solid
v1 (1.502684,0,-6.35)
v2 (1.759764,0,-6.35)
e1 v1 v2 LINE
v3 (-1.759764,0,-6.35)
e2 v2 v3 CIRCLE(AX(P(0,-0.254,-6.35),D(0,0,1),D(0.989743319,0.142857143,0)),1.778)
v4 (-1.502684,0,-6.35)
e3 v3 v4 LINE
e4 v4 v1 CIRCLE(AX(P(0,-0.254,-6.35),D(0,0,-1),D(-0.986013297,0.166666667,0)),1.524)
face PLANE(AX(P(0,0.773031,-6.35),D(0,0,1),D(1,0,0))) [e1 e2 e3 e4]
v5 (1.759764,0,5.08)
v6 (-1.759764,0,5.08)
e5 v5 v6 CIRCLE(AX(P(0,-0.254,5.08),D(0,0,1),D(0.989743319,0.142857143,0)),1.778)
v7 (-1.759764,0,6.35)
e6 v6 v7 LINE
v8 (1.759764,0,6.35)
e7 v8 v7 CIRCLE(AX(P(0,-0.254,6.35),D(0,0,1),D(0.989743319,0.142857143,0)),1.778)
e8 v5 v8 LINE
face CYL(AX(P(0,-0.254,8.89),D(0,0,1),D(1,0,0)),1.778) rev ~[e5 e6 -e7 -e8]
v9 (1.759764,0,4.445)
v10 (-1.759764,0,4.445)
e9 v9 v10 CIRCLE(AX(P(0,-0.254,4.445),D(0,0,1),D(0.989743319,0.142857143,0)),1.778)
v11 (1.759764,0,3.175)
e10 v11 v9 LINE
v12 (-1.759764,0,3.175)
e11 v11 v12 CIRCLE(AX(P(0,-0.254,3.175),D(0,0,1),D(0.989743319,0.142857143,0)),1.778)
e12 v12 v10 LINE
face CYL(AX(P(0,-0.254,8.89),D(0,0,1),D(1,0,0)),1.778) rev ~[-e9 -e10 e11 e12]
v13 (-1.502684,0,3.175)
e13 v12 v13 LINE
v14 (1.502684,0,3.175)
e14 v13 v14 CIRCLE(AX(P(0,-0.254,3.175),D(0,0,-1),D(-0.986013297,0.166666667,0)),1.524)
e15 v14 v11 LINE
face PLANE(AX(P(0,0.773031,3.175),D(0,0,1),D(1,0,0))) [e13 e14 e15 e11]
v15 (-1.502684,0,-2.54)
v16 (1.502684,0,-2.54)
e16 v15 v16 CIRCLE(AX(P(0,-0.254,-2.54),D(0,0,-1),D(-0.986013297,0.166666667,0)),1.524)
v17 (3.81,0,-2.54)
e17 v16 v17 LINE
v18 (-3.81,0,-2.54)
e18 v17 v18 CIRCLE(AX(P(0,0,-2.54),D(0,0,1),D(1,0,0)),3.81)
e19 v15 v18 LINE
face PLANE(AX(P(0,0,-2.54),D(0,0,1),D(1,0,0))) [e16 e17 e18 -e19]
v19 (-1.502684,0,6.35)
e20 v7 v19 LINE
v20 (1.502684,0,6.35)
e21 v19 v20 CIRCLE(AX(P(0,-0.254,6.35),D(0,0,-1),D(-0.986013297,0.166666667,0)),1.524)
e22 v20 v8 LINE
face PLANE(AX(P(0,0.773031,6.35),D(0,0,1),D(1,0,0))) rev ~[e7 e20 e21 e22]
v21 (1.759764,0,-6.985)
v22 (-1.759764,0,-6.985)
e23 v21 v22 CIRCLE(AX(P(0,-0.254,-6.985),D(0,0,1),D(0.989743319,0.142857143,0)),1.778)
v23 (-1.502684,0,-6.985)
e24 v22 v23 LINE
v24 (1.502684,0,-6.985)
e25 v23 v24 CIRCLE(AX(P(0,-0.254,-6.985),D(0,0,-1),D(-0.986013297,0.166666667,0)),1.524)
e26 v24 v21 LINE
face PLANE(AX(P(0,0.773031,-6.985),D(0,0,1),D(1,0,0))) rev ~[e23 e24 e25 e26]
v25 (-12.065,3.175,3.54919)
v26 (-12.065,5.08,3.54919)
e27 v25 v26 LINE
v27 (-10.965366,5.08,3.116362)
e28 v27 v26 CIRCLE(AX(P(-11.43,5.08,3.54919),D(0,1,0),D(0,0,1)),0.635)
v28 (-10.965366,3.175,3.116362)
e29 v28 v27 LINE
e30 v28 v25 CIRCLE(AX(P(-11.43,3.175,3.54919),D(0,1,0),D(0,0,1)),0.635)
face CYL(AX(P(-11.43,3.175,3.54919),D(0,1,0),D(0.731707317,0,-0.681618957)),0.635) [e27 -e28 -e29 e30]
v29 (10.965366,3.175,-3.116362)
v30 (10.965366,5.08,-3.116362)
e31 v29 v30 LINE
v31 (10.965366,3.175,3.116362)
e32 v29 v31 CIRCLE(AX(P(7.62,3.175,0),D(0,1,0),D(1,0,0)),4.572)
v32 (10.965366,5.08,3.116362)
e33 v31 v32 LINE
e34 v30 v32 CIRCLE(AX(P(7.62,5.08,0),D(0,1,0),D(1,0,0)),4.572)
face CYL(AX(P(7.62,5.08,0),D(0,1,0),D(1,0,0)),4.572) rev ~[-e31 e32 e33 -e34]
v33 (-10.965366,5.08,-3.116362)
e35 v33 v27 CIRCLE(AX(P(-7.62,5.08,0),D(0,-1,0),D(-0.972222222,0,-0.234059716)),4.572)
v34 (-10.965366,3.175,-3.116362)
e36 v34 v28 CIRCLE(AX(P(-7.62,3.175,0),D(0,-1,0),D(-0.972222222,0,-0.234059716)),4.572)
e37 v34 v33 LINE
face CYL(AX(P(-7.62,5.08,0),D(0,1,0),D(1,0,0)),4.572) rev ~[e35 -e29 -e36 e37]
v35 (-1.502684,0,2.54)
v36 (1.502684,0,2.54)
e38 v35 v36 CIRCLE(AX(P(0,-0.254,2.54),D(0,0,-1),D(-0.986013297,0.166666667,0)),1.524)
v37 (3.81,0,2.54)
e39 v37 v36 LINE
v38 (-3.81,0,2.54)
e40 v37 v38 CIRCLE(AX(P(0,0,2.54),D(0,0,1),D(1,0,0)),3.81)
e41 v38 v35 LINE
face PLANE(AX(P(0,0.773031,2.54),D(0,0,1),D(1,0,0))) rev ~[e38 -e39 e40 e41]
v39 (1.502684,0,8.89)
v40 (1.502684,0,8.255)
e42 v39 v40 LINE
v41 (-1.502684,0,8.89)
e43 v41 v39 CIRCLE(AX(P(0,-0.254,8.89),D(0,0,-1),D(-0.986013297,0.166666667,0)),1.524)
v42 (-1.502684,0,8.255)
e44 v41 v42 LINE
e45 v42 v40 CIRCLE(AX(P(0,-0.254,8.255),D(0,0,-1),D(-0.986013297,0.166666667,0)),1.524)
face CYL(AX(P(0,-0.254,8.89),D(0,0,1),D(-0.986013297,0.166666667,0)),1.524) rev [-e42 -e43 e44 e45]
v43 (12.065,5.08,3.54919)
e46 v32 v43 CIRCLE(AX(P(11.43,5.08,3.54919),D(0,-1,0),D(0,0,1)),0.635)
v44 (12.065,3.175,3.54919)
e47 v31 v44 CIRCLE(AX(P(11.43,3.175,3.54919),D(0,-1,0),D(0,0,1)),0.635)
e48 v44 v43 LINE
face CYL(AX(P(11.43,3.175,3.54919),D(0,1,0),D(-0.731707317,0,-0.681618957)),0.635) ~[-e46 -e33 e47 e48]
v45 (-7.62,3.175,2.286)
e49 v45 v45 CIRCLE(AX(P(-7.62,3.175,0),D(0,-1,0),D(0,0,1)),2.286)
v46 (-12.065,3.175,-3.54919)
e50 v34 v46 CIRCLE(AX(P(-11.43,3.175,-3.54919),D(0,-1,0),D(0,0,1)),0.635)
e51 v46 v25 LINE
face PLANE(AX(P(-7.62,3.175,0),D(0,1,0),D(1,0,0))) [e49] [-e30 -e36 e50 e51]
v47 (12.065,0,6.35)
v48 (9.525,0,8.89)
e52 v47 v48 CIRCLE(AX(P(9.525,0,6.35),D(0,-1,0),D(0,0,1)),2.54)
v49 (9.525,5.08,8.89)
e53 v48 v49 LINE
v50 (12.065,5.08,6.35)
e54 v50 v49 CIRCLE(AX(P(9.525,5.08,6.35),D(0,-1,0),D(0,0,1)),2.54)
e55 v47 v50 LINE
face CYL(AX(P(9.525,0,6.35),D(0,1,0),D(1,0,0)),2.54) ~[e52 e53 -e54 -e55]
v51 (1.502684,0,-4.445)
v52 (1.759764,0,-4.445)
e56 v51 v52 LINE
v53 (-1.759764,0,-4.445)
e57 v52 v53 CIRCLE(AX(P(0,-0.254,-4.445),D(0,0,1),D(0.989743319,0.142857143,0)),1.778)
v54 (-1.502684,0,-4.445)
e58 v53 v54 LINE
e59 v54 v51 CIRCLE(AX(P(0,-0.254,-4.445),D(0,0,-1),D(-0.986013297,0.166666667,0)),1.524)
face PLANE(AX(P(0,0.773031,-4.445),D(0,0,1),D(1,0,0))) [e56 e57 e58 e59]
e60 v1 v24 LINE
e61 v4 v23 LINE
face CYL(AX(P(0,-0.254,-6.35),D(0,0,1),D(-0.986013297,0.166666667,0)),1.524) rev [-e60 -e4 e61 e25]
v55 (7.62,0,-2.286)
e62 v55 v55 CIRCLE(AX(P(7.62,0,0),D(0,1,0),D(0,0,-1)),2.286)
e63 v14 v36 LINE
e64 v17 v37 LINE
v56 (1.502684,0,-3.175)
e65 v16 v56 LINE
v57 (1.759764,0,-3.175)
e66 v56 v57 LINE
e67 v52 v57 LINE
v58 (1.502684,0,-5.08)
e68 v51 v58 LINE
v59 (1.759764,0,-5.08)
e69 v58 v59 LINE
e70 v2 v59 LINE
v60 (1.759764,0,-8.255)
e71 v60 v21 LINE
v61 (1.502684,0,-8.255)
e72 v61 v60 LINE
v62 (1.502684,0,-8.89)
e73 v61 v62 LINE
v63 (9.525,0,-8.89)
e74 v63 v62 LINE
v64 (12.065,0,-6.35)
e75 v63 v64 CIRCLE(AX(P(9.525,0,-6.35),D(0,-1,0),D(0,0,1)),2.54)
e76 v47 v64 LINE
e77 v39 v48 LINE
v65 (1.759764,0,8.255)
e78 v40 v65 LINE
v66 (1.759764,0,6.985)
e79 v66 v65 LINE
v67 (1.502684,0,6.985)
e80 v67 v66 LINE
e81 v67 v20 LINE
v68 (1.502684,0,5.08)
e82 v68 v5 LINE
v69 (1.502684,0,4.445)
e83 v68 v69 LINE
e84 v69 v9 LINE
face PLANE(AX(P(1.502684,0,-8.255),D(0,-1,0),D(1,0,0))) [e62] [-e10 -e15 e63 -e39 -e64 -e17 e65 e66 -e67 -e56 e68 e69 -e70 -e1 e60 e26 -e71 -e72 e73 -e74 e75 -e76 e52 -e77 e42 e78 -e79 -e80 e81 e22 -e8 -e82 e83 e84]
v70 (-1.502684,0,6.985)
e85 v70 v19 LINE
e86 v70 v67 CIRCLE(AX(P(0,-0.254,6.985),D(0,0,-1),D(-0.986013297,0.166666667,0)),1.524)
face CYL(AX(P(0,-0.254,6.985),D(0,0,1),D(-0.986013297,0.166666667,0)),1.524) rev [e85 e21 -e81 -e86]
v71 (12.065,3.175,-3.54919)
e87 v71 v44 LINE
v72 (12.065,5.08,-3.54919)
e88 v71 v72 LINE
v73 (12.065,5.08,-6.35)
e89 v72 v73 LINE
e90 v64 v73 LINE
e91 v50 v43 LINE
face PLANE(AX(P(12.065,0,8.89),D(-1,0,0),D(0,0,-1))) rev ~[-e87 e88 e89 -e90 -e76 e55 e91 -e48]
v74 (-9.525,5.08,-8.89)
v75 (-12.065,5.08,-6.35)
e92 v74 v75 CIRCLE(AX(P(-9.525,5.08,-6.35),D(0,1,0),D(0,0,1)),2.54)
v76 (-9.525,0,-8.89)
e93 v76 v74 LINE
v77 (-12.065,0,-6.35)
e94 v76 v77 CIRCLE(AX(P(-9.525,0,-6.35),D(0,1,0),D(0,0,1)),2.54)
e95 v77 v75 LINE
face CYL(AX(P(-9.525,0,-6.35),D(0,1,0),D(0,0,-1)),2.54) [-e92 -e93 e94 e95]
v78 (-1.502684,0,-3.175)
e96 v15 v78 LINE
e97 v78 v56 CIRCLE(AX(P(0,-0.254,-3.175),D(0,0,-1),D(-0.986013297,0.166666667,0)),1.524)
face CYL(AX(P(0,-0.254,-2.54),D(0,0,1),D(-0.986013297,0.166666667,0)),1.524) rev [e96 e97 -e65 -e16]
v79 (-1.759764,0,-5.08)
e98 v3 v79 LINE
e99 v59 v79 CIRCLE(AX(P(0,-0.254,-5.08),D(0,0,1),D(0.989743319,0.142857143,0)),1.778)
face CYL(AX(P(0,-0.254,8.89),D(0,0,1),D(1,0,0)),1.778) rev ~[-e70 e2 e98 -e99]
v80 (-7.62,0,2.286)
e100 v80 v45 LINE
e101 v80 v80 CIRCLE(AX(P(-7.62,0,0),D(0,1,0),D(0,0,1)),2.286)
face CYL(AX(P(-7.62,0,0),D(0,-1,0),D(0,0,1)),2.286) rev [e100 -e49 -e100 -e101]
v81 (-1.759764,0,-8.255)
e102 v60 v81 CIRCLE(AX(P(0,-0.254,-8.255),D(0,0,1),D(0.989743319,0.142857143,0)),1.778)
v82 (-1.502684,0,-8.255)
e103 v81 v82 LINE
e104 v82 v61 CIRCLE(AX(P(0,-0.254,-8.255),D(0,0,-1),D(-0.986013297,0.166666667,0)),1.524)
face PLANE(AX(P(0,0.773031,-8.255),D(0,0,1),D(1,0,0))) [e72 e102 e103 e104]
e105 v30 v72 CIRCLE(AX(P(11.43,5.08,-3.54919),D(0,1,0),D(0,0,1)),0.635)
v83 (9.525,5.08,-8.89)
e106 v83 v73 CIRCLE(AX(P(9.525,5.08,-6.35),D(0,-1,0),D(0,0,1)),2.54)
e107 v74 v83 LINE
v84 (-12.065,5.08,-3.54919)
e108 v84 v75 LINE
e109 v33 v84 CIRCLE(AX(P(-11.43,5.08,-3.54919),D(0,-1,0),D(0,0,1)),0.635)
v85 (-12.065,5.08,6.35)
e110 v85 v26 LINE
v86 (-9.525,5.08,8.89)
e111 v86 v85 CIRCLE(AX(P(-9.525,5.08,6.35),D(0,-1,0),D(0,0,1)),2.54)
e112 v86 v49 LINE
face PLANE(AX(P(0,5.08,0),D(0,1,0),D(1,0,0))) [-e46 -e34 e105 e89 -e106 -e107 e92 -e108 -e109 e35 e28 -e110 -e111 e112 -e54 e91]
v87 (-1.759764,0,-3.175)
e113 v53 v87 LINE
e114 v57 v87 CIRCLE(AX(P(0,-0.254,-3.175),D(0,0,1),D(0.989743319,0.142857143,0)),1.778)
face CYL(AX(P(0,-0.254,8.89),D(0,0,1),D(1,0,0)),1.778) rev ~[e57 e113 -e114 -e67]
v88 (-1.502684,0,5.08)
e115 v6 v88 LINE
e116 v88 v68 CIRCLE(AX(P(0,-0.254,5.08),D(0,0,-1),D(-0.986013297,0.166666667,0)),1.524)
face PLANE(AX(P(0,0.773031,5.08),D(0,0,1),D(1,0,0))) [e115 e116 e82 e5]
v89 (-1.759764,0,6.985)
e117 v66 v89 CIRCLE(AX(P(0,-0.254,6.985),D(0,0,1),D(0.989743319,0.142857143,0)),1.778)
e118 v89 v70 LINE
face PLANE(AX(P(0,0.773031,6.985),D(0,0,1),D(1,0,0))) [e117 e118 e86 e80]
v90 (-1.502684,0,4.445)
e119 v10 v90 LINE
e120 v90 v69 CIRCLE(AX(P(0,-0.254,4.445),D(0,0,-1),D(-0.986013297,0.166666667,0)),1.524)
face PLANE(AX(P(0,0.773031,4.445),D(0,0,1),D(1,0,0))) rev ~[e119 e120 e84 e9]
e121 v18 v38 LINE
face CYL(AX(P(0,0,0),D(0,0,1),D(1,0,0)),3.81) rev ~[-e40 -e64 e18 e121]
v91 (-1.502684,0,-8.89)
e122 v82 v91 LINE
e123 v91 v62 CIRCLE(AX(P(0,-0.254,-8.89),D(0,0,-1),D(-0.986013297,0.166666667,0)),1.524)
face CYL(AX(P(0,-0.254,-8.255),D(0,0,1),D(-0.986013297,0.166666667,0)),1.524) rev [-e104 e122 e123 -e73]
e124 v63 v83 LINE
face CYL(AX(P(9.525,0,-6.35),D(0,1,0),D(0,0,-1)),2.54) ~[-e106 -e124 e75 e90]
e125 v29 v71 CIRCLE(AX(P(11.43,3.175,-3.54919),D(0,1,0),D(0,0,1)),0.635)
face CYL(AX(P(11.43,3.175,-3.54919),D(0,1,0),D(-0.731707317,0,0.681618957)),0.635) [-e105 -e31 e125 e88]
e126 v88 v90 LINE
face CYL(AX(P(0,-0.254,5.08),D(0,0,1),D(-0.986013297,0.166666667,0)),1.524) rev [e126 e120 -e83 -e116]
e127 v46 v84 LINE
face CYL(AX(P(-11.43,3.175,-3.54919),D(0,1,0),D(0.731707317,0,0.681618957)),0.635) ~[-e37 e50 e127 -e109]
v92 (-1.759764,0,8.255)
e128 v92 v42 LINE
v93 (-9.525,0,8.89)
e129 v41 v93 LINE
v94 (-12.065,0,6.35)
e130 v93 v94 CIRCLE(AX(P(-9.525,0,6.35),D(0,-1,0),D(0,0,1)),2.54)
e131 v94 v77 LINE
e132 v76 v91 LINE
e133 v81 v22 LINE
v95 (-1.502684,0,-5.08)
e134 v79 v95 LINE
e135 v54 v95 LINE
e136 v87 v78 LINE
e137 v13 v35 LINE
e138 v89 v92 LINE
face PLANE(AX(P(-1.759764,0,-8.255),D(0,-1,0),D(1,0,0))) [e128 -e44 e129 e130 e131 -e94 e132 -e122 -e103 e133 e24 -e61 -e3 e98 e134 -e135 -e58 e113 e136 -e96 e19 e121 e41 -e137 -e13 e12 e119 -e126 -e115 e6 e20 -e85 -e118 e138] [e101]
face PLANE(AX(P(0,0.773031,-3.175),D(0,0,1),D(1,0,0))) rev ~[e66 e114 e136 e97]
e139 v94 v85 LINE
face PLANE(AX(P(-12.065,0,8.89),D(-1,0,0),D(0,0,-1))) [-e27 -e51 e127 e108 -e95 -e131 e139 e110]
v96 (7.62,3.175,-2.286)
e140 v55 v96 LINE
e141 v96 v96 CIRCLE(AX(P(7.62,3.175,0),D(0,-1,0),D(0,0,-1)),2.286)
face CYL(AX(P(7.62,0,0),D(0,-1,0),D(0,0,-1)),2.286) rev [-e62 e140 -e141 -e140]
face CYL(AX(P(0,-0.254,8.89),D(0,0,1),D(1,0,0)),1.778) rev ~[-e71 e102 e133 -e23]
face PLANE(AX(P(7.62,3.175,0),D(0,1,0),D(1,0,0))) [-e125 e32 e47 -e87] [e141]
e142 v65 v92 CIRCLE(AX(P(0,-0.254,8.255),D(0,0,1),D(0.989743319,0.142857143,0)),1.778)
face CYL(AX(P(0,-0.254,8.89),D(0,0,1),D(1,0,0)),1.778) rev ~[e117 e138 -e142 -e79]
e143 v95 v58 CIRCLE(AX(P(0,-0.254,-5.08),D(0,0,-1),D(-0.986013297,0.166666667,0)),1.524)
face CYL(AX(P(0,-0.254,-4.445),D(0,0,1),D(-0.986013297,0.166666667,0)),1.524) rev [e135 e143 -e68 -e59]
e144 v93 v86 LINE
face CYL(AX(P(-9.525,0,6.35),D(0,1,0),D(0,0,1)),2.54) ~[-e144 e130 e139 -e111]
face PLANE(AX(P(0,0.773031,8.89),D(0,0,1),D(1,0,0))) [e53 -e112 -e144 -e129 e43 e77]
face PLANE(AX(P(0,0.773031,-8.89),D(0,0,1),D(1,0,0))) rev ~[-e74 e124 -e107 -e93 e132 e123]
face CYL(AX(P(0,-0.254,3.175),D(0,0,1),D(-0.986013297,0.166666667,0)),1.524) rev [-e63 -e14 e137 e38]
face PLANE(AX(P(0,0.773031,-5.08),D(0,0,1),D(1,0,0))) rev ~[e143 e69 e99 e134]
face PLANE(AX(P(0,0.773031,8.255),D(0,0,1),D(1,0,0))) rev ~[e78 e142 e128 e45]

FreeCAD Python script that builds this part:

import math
import FreeCAD as App
import Part
import Sketcher
from FreeCAD import Vector
Q = App.Units.Quantity


def edges_at(feature, points):
    """Names of the edges that pass closest to the given points."""
    edges = feature.Shape.Edges
    near = lambda p: min(range(len(edges)), key=lambda i: edges[i].distToShape(Part.Vertex(*p))[0])
    return sorted({f"Edge{near(p) + 1}" for p in points})


def add_polygon(sketch, points):
    """Adds a closed chain of lines whose ends are joined by coincident constraints."""
    first, n = sketch.GeometryCount, len(points)
    for a, b in zip(points, points[1:] + points[:1]):
        sketch.addGeometry(Part.LineSegment(App.Vector(*a, 0), App.Vector(*b, 0)), False)
    for i in range(n):
        sketch.addConstraint(Sketcher.Constraint("Coincident", first + i, 2, first + (i + 1) % n, 1))

doc = App.newDocument("Part")
body = doc.addObject("PartDesign::Body", "Body")

# Sketch on XZ plane
sketch1 = body.newObject("Sketcher::SketchObject", "Sketch")
sketch1.AttachmentSupport = (doc.getObject("XZ_Plane"), [""])
sketch1.MapMode = "FlatFace"
add_polygon(sketch1, [(-12.1, -8.9), (-12.1, 8.9), (12.1, 8.9), (12.1, -8.9)])  # lines 0-3
sketch1.addGeometry(Part.Circle(Vector(-7.6, 0, 0), Vector(0, 0, 1), 2.3), False)  # 4
sketch1.addGeometry(Part.Circle(Vector(7.6, 0, 0), Vector(0, 0, 1), 2.3), False)  # 5
sketch1.addConstraint(Sketcher.Constraint("Vertical", 0))
sketch1.addConstraint(Sketcher.Constraint("Horizontal", 1))
sketch1.addConstraint(Sketcher.Constraint("Vertical", 2))
sketch1.addConstraint(Sketcher.Constraint("Horizontal", 3))
sketch1.addConstraint(Sketcher.Constraint("Equal", 4, 5))
sketch1.addConstraint(Sketcher.Constraint("Symmetric", 4, 3, 5, 3, -1, 1))
sketch1.addConstraint(Sketcher.Constraint("Symmetric", 0, 2, 2, 2, -1, 1))
sketch1.addConstraint(Sketcher.Constraint("PointOnObject", 4, 3, -1))
sketch1.addConstraint(Sketcher.Constraint("Diameter", 4, Q("0.18 in")))
sketch1.addConstraint(Sketcher.Constraint("DistanceY", 0, 1, 0, 2, Q("0.7 in")))
sketch1.addConstraint(Sketcher.Constraint("DistanceX", 1, 1, 1, 2, Q("0.95 in")))
sketch1.addConstraint(Sketcher.Constraint("DistanceX", 4, 3, -1, 1, Q("0.3 in")))
pad1 = body.newObject("PartDesign::Pad", "Pad")
pad1.Profile = sketch1
pad1.Length = Q("0.2 in")
pad1.Reversed = True

# Sketch on XY plane
sketch2 = body.newObject("Sketcher::SketchObject", "Sketch001")
sketch2.AttachmentSupport = (doc.getObject("XY_Plane"), [""])
sketch2.MapMode = "FlatFace"
sketch2.AttachmentOffset = App.Placement(Vector(0, 0, 0.35 * 25.4), App.Rotation())
sketch2.addGeometry(Part.Circle(Vector(0, -0.3, 0), Vector(0, 0, 1), 1.8), False)
sketch2.addConstraint(Sketcher.Constraint("PointOnObject", 0, 3, -2))
sketch2.addConstraint(Sketcher.Constraint("Diameter", 0, Q("0.14 in")))
sketch2.addConstraint(Sketcher.Constraint("DistanceY", 0, 3, -1, 1, Q("0.01 in")))
pocket1 = body.newObject("PartDesign::Pocket", "Pocket")
pocket1.Profile = sketch2
pocket1.Type = "ThroughAll"

# Sketch on XY plane
sketch3 = body.newObject("Sketcher::SketchObject", "Sketch002")
sketch3.AttachmentSupport = (doc.getObject("XY_Plane"), [""])
sketch3.MapMode = "FlatFace"
sketch3.AttachmentOffset = App.Placement(Vector(0, 0, 0.35 * 25.4), App.Rotation())
sketch3.addGeometry(Part.ArcOfCircle(Part.Circle(Vector(0, -0.25, 0), Vector(0, 0, 1), 1.78), math.radians(8), math.radians(172)), False)
sketch3.addGeometry(Part.LineSegment(Vector(-1.76, 0, 0), Vector(-1.5, 0, 0)), False)
sketch3.addGeometry(Part.ArcOfCircle(Part.Circle(Vector(0, -0.25, 0), Vector(0, 0, 1), 1.52), math.radians(10), math.radians(170)), False)
sketch3.addGeometry(Part.LineSegment(Vector(1.5, 0, 0), Vector(1.76, 0, 0)), False)
sketch3.addConstraint(Sketcher.Constraint("Coincident", 0, 2, 1, 1))
sketch3.addConstraint(Sketcher.Constraint("Coincident", 1, 2, 2, 2))
sketch3.addConstraint(Sketcher.Constraint("Coincident", 2, 1, 3, 1))
sketch3.addConstraint(Sketcher.Constraint("Coincident", 3, 2, 0, 1))
sketch3.addConstraint(Sketcher.Constraint("Horizontal", 1))
sketch3.addConstraint(Sketcher.Constraint("Horizontal", 3))
sketch3.addConstraint(Sketcher.Constraint("Coincident", 2, 3, 0, 3))
sketch3.addConstraint(Sketcher.Constraint("Symmetric", 1, 2, 2, 1, -1, 1))
sketch3.addConstraint(Sketcher.Constraint("PointOnObject", 0, 3, -2))
sketch3.addConstraint(Sketcher.Constraint("Radius", 0, Q("0.07 in")))
sketch3.addConstraint(Sketcher.Constraint("Radius", 2, Q("0.06 in")))
sketch3.addConstraint(Sketcher.Constraint("DistanceY", 0, 3, -1, 1, Q("0.01 in")))
pad2 = body.newObject("PartDesign::Pad", "Pad001")
pad2.Profile = sketch3
pad2.Length = Q("0.025 in")
pad2.Reversed = True
doc.recompute()

linearpattern = body.newObject("PartDesign::LinearPattern", "LinearPattern")
linearpattern.Originals = [pad2]
linearpattern.Direction = (doc.getObject("Z_Axis"), [""])
linearpattern.Mode = "offset"
linearpattern.Offset = Q("0.075 in")
linearpattern.Occurrences = 10
linearpattern.Reversed = True
body.Tip = linearpattern

# Sketch on XZ plane
sketch4 = body.newObject("Sketcher::SketchObject", "Sketch003")
sketch4.AttachmentSupport = (doc.getObject("XZ_Plane"), [""])
sketch4.MapMode = "FlatFace"
sketch4.AttachmentOffset = App.Placement(Vector(0, 0, -0.2 * 25.4), App.Rotation())
sketch4.addGeometry(Part.Circle(Vector(-7.6, 0, 0), Vector(0, 0, 1), 4.6), False)
sketch4.addGeometry(Part.Circle(Vector(7.6, 0, 0), Vector(0, 0, 1), 4.6), False)
sketch4.addConstraint(Sketcher.Constraint("Equal", 0, 1))
sketch4.addConstraint(Sketcher.Constraint("Symmetric", 0, 3, 1, 3, -1, 1))
sketch4.addConstraint(Sketcher.Constraint("PointOnObject", 0, 3, -1))
sketch4.addConstraint(Sketcher.Constraint("Diameter", 0, Q("0.36 in")))
sketch4.addConstraint(Sketcher.Constraint("DistanceX", 0, 3, -1, 1, Q("0.3 in")))
pocket2 = body.newObject("PartDesign::Pocket", "Pocket001")
pocket2.Profile = sketch4
pocket2.Length = Q("0.075 in")
pocket2.Reversed = True
doc.recompute()

fillet = body.newObject("PartDesign::Fillet", "Fillet")
fillet.Base = (pocket2, edges_at(pocket2, [
    (12.065, 4.128, -1.07),
    (12.065, 4.128, 1.07),
    (-12.065, 4.128, 1.07),
    (-12.065, 4.128, -1.07),
]))
fillet.Radius = Q("0.025 in")
doc.recompute()

fillet2 = body.newObject("PartDesign::Fillet", "Fillet001")
fillet2.Base = (fillet, edges_at(fillet, [
    (-12.065, 2.54, -8.89),
    (12.065, 2.54, -8.89),
    (12.065, 2.54, 8.89),
    (-12.065, 2.54, 8.89),
]))
fillet2.Radius = Q("0.1 in")

# Sketch on XY plane
sketch5 = body.newObject("Sketcher::SketchObject", "Sketch004")
sketch5.AttachmentSupport = (doc.getObject("XY_Plane"), [""])
sketch5.MapMode = "FlatFace"
sketch5.addGeometry(Part.Circle(Vector(0, 0, 0), Vector(0, 0, 1), 3.8), False)
sketch5.addConstraint(Sketcher.Constraint("Coincident", 0, 3, -1, 1))
sketch5.addConstraint(Sketcher.Constraint("Diameter", 0, Q("0.3 in")))
pocket3 = body.newObject("PartDesign::Pocket", "Pocket002")
pocket3.Profile = sketch5
pocket3.Length = Q("0.2 in")
pocket3.Midplane = True

doc.recompute()
